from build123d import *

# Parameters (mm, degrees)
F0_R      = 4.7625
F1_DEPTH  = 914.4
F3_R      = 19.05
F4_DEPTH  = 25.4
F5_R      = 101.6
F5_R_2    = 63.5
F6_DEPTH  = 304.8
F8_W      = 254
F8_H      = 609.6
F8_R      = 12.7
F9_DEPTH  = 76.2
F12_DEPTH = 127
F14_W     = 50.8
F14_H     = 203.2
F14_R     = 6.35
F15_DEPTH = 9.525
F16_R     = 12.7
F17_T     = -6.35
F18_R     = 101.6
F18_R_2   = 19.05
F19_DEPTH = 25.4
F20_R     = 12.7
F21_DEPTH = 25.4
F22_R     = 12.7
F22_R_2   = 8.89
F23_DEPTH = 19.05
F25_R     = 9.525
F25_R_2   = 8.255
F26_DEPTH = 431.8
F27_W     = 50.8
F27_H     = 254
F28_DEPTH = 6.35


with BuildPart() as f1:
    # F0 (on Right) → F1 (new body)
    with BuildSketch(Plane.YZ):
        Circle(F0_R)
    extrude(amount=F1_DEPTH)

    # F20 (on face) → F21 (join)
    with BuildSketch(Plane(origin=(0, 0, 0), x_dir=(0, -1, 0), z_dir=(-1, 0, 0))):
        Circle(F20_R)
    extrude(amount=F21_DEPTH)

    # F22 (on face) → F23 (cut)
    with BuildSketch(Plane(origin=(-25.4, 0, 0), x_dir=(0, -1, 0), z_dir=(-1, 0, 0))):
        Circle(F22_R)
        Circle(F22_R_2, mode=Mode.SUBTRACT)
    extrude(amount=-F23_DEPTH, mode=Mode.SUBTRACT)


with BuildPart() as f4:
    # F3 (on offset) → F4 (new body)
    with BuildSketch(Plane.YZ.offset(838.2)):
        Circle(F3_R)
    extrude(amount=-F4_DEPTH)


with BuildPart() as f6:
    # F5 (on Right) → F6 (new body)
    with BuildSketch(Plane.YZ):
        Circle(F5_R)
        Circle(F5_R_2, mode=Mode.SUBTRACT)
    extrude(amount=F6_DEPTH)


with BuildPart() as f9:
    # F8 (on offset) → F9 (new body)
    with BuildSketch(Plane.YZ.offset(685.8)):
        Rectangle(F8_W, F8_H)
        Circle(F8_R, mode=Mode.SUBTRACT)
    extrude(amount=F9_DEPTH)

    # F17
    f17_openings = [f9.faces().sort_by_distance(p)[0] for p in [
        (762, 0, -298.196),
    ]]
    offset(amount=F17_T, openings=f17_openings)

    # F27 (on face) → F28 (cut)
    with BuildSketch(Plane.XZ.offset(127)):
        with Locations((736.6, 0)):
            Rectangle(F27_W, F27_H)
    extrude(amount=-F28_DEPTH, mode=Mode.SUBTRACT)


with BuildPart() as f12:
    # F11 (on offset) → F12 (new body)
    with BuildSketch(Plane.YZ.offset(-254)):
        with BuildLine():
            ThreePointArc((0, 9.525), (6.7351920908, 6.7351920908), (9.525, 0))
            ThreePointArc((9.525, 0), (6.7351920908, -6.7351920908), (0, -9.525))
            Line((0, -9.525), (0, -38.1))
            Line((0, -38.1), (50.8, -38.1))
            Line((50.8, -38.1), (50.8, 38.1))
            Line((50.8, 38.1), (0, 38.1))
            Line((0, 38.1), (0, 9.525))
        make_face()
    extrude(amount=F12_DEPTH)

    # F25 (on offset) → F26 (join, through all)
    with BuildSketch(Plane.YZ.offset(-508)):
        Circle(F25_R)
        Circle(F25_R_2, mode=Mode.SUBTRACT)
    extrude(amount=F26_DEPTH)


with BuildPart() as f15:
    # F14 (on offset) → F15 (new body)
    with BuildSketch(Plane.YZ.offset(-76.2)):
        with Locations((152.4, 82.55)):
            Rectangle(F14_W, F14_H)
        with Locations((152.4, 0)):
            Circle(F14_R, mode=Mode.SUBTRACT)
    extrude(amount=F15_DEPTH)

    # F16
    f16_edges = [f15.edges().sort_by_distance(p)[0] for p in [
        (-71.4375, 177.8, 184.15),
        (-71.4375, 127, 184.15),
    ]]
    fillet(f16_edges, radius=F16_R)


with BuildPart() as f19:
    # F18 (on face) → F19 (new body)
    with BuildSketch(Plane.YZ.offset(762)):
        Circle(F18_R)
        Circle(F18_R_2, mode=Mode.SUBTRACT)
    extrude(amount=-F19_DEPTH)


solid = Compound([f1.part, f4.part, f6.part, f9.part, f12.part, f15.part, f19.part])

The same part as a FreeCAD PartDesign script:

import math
import FreeCAD as App
import Part
import Sketcher
Q = App.Units.Quantity


def edges_at(feature, points):
    """Names of the edges that pass closest to the given points."""
    edges = feature.Shape.Edges
    near = lambda p: min(range(len(edges)), key=lambda i: edges[i].distToShape(Part.Vertex(*p))[0])
    return sorted({f"Edge{near(p) + 1}" for p in points})


def faces_at(feature, points):
    """Names of the faces that lie closest to the given points."""
    faces = feature.Shape.Faces
    near = lambda p: min(range(len(faces)), key=lambda i: faces[i].distToShape(Part.Vertex(*p))[0])
    return sorted({f"Face{near(p) + 1}" for p in points})


def add_polygon(sketch, points):
    """Adds a closed chain of lines whose ends are joined by coincident constraints."""
    first, n = sketch.GeometryCount, len(points)
    for a, b in zip(points, points[1:] + points[:1]):
        sketch.addGeometry(Part.LineSegment(App.Vector(*a, 0), App.Vector(*b, 0)), False)
    for i in range(n):
        sketch.addConstraint(Sketcher.Constraint("Coincident", first + i, 2, first + (i + 1) % n, 1))

doc = App.newDocument("Part")
body = doc.addObject("PartDesign::Body", "Body")

# Sketch on YZ plane
sketch1 = body.newObject("Sketcher::SketchObject", "Sketch")
sketch1.AttachmentSupport = (doc.getObject("YZ_Plane"), [""])
sketch1.MapMode = "FlatFace"
sketch1.addGeometry(Part.Circle(App.Vector(0, 0, 0), App.Vector(0, 0, 1), 4.8), False)
sketch1.addConstraint([
    Sketcher.Constraint("Coincident", 0, 3, -1, 1),
    Sketcher.Constraint("Diameter", 0, Q("0.375 in")),
])
pad1 = body.newObject("PartDesign::Pad", "Pad")
pad1.Profile = sketch1
pad1.Length = Q("36 in")

# Sketch on YZ plane
sketch2 = body.newObject("Sketcher::SketchObject", "Sketch001")
sketch2.AttachmentSupport = (doc.getObject("YZ_Plane"), [""])
sketch2.MapMode = "FlatFace"
sketch2.addGeometry(Part.Circle(App.Vector(0, 0, 0), App.Vector(0, 0, 1), 13), False)
sketch2.addConstraint([
    Sketcher.Constraint("Coincident", 0, 3, -1, 1),
    Sketcher.Constraint("Diameter", 0, Q("1 in")),
])
pad2 = body.newObject("PartDesign::Pad", "Pad001")
pad2.Profile = sketch2
pad2.Length = Q("1 in")
pad2.Reversed = True

# Sketch on YZ plane
sketch3 = body.newObject("Sketcher::SketchObject", "Sketch002")
sketch3.AttachmentSupport = (doc.getObject("YZ_Plane"), [""])
sketch3.MapMode = "FlatFace"
sketch3.AttachmentOffset = App.Placement(App.Vector(0, 0, -1 * 25.4), App.Rotation())
sketch3.addGeometry([
    Part.Circle(App.Vector(0, 0, 0), App.Vector(0, 0, 1), 13),
    Part.Circle(App.Vector(0, 0, 0), App.Vector(0, 0, 1), 9),
], False)
sketch3.addConstraint([
    Sketcher.Constraint("Coincident", 0, 3, -1, 1),
    Sketcher.Constraint("Coincident", 1, 3, -1, 1),
    Sketcher.Constraint("Diameter", 0, Q("1 in")),
    Sketcher.Constraint("Diameter", 1, Q("0.7 in")),
])
pocket1 = body.newObject("PartDesign::Pocket", "Pocket")
pocket1.Profile = sketch3
pocket1.Length = Q("0.75 in")
pocket1.Reversed = True
body2 = doc.addObject("PartDesign::Body", "Body001")

# Sketch on YZ plane
sketch4 = body2.newObject("Sketcher::SketchObject", "Sketch003")
sketch4.AttachmentSupport = (doc.getObject("YZ_Plane001"), [""])
sketch4.MapMode = "FlatFace"
sketch4.AttachmentOffset = App.Placement(App.Vector(0, 0, 33 * 25.4), App.Rotation())
sketch4.addGeometry(Part.Circle(App.Vector(0, 0, 0), App.Vector(0, 0, 1), 19), False)
sketch4.addConstraint([
    Sketcher.Constraint("Coincident", 0, 3, -1, 1),
    Sketcher.Constraint("Diameter", 0, Q("1.5 in")),
])
pad3 = body2.newObject("PartDesign::Pad", "Pad002")
pad3.Profile = sketch4
pad3.Length = Q("1 in")
pad3.Reversed = True
body3 = doc.addObject("PartDesign::Body", "Body002")

# Sketch on YZ plane
sketch5 = body3.newObject("Sketcher::SketchObject", "Sketch004")
sketch5.AttachmentSupport = (doc.getObject("YZ_Plane002"), [""])
sketch5.MapMode = "FlatFace"
sketch5.addGeometry([
    Part.Circle(App.Vector(0, 0, 0), App.Vector(0, 0, 1), 102),
    Part.Circle(App.Vector(0, 0, 0), App.Vector(0, 0, 1), 64),
], False)
sketch5.addConstraint([
    Sketcher.Constraint("Coincident", 0, 3, -1, 1),
    Sketcher.Constraint("Coincident", 1, 3, -1, 1),
    Sketcher.Constraint("Diameter", 0, Q("8 in")),
    Sketcher.Constraint("Diameter", 1, Q("5 in")),
])
pad4 = body3.newObject("PartDesign::Pad", "Pad003")
pad4.Profile = sketch5
pad4.Length = Q("12 in")
body4 = doc.addObject("PartDesign::Body", "Body003")

# Sketch on YZ plane
sketch6 = body4.newObject("Sketcher::SketchObject", "Sketch005")
sketch6.AttachmentSupport = (doc.getObject("YZ_Plane003"), [""])
sketch6.MapMode = "FlatFace"
sketch6.AttachmentOffset = App.Placement(App.Vector(0, 0, 27 * 25.4), App.Rotation())
add_polygon(sketch6, [(-127, 305), (-127, -305), (127, -305), (127, 305)])  # lines 0-3
sketch6.addGeometry(Part.Circle(App.Vector(0, 0, 0), App.Vector(0, 0, 1), 13), False)  # 4
sketch6.addConstraint([
    Sketcher.Constraint("Vertical", 0),
    Sketcher.Constraint("Horizontal", 1),
    Sketcher.Constraint("Vertical", 2),
    Sketcher.Constraint("Horizontal", 3),
    Sketcher.Constraint("Coincident", 4, 3, -1, 1),
    Sketcher.Constraint("Symmetric", 0, 2, 2, 2, -1, 1),
    Sketcher.Constraint("Diameter", 4, Q("1 in")),
    Sketcher.Constraint("DistanceX", 1, 1, 1, 2, Q("10 in")),
    Sketcher.Constraint("DistanceY", 0, 2, 0, 1, Q("24 in")),
])
pad5 = body4.newObject("PartDesign::Pad", "Pad004")
pad5.Profile = sketch6
pad5.Length = Q("3 in")
doc.recompute()

thickness = body4.newObject("PartDesign::Thickness", "Thickness")
thickness.Base = (pad5, faces_at(pad5, [(762, -50.8, -121.92)]))
thickness.Value = Q("0.25 in")
thickness.Reversed = True
thickness.Join = "Arc"

# Sketch on XZ plane
sketch7 = body4.newObject("Sketcher::SketchObject", "Sketch006")
sketch7.AttachmentSupport = (doc.getObject("XZ_Plane003"), [""])
sketch7.MapMode = "FlatFace"
sketch7.AttachmentOffset = App.Placement(App.Vector(0, 0, 5 * 25.4), App.Rotation())
add_polygon(sketch7, [(711, 127), (711, -127), (762, -127), (762, 127)])  # lines 0-3
sketch7.addConstraint([
    Sketcher.Constraint("Vertical", 0),
    Sketcher.Constraint("Horizontal", 1),
    Sketcher.Constraint("Vertical", 2),
    Sketcher.Constraint("Horizontal", 3),
    Sketcher.Constraint("DistanceX", 1, 1, 1, 2, Q("2 in")),
    Sketcher.Constraint("DistanceY", 0, 2, 0, 1, Q("10 in")),
    Sketcher.Constraint("DistanceX", -1, 1, 0, 2, Q("28 in")),
    Sketcher.Constraint("DistanceY", 0, 2, -1, 1, Q("5 in")),
])
pocket2 = body4.newObject("PartDesign::Pocket", "Pocket001")
pocket2.Profile = sketch7
pocket2.Length = Q("0.25 in")
body5 = doc.addObject("PartDesign::Body", "Body004")

# Sketch on YZ plane
sketch8 = body5.newObject("Sketcher::SketchObject", "Sketch007")
sketch8.AttachmentSupport = (doc.getObject("YZ_Plane004"), [""])
sketch8.MapMode = "FlatFace"
sketch8.AttachmentOffset = App.Placement(App.Vector(0, 0, -10 * 25.4), App.Rotation())
sketch8.addGeometry([
    Part.ArcOfCircle(Part.Circle(App.Vector(0, 0, 0), App.Vector(0, 0, 1), 10), math.radians(0), math.radians(90)),  # 0
    Part.ArcOfCircle(Part.Circle(App.Vector(0, 0, 0), App.Vector(0, 0, 1), 10), math.radians(-90), math.radians(0)),  # 1
    Part.LineSegment(App.Vector(0, -10, 0), App.Vector(0, -38, 0)),  # 2
    Part.LineSegment(App.Vector(0, -38, 0), App.Vector(51, -38, 0)),  # 3
    Part.LineSegment(App.Vector(51, -38, 0), App.Vector(51, 38, 0)),  # 4
    Part.LineSegment(App.Vector(51, 38, 0), App.Vector(0, 38, 0)),  # 5
    Part.LineSegment(App.Vector(0, 38, 0), App.Vector(0, 10, 0)),  # 6
], False)
sketch8.addConstraint([
    Sketcher.Constraint("Tangent", 0, 1, 1, 2),
    Sketcher.Constraint("Coincident", 1, 1, 2, 1),
    Sketcher.Constraint("Coincident", 2, 2, 3, 1),
    Sketcher.Constraint("Coincident", 3, 2, 4, 1),
    Sketcher.Constraint("Coincident", 4, 2, 5, 1),
    Sketcher.Constraint("Coincident", 5, 2, 6, 1),
    Sketcher.Constraint("Coincident", 6, 2, 0, 2),
    Sketcher.Constraint("Vertical", 2),
    Sketcher.Constraint("Horizontal", 3),
    Sketcher.Constraint("Vertical", 4),
    Sketcher.Constraint("Horizontal", 5),
    Sketcher.Constraint("Vertical", 6),
    Sketcher.Constraint("Coincident", 0, 3, -1, 1),
    Sketcher.Constraint("Equal", 0, 1),
    Sketcher.Constraint("Symmetric", 2, 2, 5, 2, -1, 1),
    Sketcher.Constraint("PointOnObject", 0, 1, -1),
    Sketcher.Constraint("PointOnObject", 1, 1, -2),
    Sketcher.Constraint("DistanceX", 3, 1, 3, 2, Q("2 in")),
    Sketcher.Constraint("DistanceY", 4, 1, 4, 2, Q("3 in")),
    Sketcher.Constraint("Radius", 0, Q("0.375 in")),
])
pad6 = body5.newObject("PartDesign::Pad", "Pad005")
pad6.Profile = sketch8
pad6.Length = Q("5 in")

# Sketch on YZ plane
sketch9 = body5.newObject("Sketcher::SketchObject", "Sketch008")
sketch9.AttachmentSupport = (doc.getObject("YZ_Plane004"), [""])
sketch9.MapMode = "FlatFace"
sketch9.AttachmentOffset = App.Placement(App.Vector(0, 0, -20 * 25.4), App.Rotation())
sketch9.addGeometry([
    Part.Circle(App.Vector(0, 0, 0), App.Vector(0, 0, 1), 10),
    Part.Circle(App.Vector(0, 0, 0), App.Vector(0, 0, 1), 8),
], False)
sketch9.addConstraint([
    Sketcher.Constraint("Coincident", 0, 3, -1, 1),
    Sketcher.Constraint("Coincident", 1, 3, -1, 1),
    Sketcher.Constraint("Diameter", 0, Q("0.75 in")),
    Sketcher.Constraint("Diameter", 1, Q("0.65 in")),
])
pad7 = body5.newObject("PartDesign::Pad", "Pad006")
pad7.Profile = sketch9
pad7.Length = Q("17 in")
body6 = doc.addObject("PartDesign::Body", "Body005")

# Sketch on YZ plane
sketch10 = body6.newObject("Sketcher::SketchObject", "Sketch009")
sketch10.AttachmentSupport = (doc.getObject("YZ_Plane005"), [""])
sketch10.MapMode = "FlatFace"
sketch10.AttachmentOffset = App.Placement(App.Vector(0, 0, -3 * 25.4), App.Rotation())
add_polygon(sketch10, [(127, 184), (127, -19), (178, -19), (178, 184)])  # lines 0-3
sketch10.addGeometry(Part.Circle(App.Vector(152, 0, 0), App.Vector(0, 0, 1), 6), False)  # 4
sketch10.addConstraint([
    Sketcher.Constraint("Vertical", 0),
    Sketcher.Constraint("Horizontal", 1),
    Sketcher.Constraint("Vertical", 2),
    Sketcher.Constraint("Horizontal", 3),
    Sketcher.Constraint("PointOnObject", 4, 3, -1),
    Sketcher.Constraint("Diameter", 4, Q("0.5 in")),
    Sketcher.Constraint("DistanceX", 1, 1, 1, 2, Q("2 in")),
    Sketcher.Constraint("DistanceY", 0, 2, 0, 1, Q("8 in")),
    Sketcher.Constraint("DistanceX", -1, 1, 4, 3, Q("6 in")),
    Sketcher.Constraint("DistanceX", -1, 1, 0, 2, Q("5 in")),
    Sketcher.Constraint("DistanceY", 0, 2, -1, 1, Q("0.75 in")),
])
pad8 = body6.newObject("PartDesign::Pad", "Pad007")
pad8.Profile = sketch10
pad8.Length = Q("0.375 in")
doc.recompute()

fillet = body6.newObject("PartDesign::Fillet", "Fillet")
fillet.Base = (pad8, edges_at(pad8, [(-71.438, 177.8, 184.15), (-71.438, 127, 184.15)]))
fillet.Radius = Q("0.5 in")
body7 = doc.addObject("PartDesign::Body", "Body006")

# Sketch on YZ plane
sketch11 = body7.newObject("Sketcher::SketchObject", "Sketch010")
sketch11.AttachmentSupport = (doc.getObject("YZ_Plane006"), [""])
sketch11.MapMode = "FlatFace"
sketch11.AttachmentOffset = App.Placement(App.Vector(0, 0, 30 * 25.4), App.Rotation())
sketch11.addGeometry([
    Part.Circle(App.Vector(0, 0, 0), App.Vector(0, 0, 1), 102),
    Part.Circle(App.Vector(0, 0, 0), App.Vector(0, 0, 1), 19),
], False)
sketch11.addConstraint([
    Sketcher.Constraint("Coincident", 0, 3, -1, 1),
    Sketcher.Constraint("Coincident", 1, 3, -1, 1),
    Sketcher.Constraint("Diameter", 0, Q("8 in")),
    Sketcher.Constraint("Diameter", 1, Q("1.5 in")),
])
pad9 = body7.newObject("PartDesign::Pad", "Pad008")
pad9.Profile = sketch11
pad9.Length = Q("1 in")
pad9.Reversed = True

doc.recompute()
